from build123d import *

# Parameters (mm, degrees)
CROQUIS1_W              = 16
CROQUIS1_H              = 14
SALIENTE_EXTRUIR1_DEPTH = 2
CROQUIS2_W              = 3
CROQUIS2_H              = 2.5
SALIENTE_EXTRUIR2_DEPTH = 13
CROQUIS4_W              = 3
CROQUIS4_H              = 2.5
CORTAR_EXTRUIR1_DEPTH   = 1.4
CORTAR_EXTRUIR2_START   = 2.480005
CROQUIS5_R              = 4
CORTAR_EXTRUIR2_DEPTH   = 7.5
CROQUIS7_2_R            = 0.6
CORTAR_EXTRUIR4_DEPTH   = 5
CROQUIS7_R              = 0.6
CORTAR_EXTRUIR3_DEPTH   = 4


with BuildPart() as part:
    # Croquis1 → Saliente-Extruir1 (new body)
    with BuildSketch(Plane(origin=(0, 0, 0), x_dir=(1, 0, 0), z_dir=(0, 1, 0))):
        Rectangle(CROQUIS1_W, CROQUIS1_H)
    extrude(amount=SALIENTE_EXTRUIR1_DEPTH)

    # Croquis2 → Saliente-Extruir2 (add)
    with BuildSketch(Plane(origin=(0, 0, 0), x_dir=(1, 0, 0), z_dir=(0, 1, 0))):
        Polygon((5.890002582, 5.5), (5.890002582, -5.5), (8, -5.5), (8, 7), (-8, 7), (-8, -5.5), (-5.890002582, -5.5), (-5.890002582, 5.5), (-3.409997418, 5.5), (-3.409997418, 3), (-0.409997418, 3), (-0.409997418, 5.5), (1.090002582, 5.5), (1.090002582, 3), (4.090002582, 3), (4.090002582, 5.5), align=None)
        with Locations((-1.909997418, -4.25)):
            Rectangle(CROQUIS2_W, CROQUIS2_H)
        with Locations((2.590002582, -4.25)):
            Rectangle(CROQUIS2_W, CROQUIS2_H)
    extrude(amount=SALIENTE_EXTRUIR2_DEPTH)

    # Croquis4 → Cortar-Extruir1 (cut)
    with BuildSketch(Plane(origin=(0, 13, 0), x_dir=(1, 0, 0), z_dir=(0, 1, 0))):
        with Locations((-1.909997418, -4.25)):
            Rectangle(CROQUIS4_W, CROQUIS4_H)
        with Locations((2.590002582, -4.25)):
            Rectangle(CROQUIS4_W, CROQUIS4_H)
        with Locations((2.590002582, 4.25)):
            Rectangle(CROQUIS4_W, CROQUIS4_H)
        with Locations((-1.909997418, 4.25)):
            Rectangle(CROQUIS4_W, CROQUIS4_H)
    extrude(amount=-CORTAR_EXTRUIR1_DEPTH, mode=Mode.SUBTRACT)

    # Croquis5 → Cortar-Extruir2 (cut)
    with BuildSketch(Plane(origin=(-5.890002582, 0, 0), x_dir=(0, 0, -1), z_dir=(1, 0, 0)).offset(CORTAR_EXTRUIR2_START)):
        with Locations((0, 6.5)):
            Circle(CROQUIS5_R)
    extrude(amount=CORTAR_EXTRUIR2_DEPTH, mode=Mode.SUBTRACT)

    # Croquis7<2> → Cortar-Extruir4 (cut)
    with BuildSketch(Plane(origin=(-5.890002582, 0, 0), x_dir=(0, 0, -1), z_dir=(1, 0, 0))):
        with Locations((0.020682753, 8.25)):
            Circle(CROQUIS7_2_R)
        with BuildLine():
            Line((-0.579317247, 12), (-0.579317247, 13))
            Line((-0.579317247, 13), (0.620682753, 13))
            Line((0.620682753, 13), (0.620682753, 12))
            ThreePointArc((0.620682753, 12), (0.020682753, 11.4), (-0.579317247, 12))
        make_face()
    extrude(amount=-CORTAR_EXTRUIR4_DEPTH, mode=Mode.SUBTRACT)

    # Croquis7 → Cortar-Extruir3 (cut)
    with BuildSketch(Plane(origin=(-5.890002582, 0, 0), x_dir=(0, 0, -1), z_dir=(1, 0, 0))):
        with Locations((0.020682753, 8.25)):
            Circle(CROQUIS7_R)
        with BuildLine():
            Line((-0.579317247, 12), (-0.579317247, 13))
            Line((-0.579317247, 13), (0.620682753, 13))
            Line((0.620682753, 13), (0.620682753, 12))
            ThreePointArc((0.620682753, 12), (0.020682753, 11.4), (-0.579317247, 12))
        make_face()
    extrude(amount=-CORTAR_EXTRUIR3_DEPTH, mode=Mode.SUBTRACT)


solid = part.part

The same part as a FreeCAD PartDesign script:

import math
import FreeCAD as App
import Part
import Sketcher
Q = App.Units.Quantity

doc = App.newDocument("Part")
body = doc.addObject("PartDesign::Body", "Body")

# Sketch on XZ plane
sketch1 = doc.addObject("Sketcher::SketchObject", "Sketch")
body.addObject(sketch1)
sketch1.AttachmentSupport = (doc.XZ_Plane, [""])
sketch1.MapMode = "FlatFace"
sketch1.addGeometry([
    Part.LineSegment(App.Vector(-8, -7, 0), App.Vector(-8, 7, 0)),
    Part.LineSegment(App.Vector(-8, 7, 0), App.Vector(8, 7, 0)),
    Part.LineSegment(App.Vector(8, 7, 0), App.Vector(8, -7, 0)),
    Part.LineSegment(App.Vector(8, -7, 0), App.Vector(-8, -7, 0)),
], False)
sketch1.addConstraint([
    Sketcher.Constraint("Coincident", 0, 2, 1, 1),
    Sketcher.Constraint("Coincident", 1, 2, 2, 1),
    Sketcher.Constraint("Coincident", 2, 2, 3, 1),
    Sketcher.Constraint("Coincident", 3, 2, 0, 1),
    Sketcher.Constraint("Vertical", 0),
    Sketcher.Constraint("Horizontal", 1),
    Sketcher.Constraint("Vertical", 2),
    Sketcher.Constraint("Horizontal", 3),
    Sketcher.Constraint("Symmetric", 0, 2, 2, 2, -1, 1),
    Sketcher.Constraint("DistanceX", 1, 1, 1, 2, Q("16 mm")),
    Sketcher.Constraint("DistanceY", 0, 1, 0, 2, Q("14 mm")),
])
pad1 = doc.addObject("PartDesign::Pad", "Pad")
body.addObject(pad1)
pad1.Profile = sketch1
pad1.Length = 2
pad1.Reversed = True

# Sketch on XZ plane
sketch2 = doc.addObject("Sketcher::SketchObject", "Sketch001")
body.addObject(sketch2)
sketch2.AttachmentSupport = (doc.XZ_Plane, [""])
sketch2.MapMode = "FlatFace"
sketch2.addGeometry([
    Part.LineSegment(App.Vector(5.9, -5.5, 0), App.Vector(5.9, 5.5, 0)),  # 0
    Part.LineSegment(App.Vector(5.9, 5.5, 0), App.Vector(8, 5.5, 0)),  # 1
    Part.LineSegment(App.Vector(8, 5.5, 0), App.Vector(8, -7, 0)),  # 2
    Part.LineSegment(App.Vector(8, -7, 0), App.Vector(-8, -7, 0)),  # 3
    Part.LineSegment(App.Vector(-8, -7, 0), App.Vector(-8, 5.5, 0)),  # 4
    Part.LineSegment(App.Vector(-8, 5.5, 0), App.Vector(-5.9, 5.5, 0)),  # 5
    Part.LineSegment(App.Vector(-5.9, 5.5, 0), App.Vector(-5.9, -5.5, 0)),  # 6
    Part.LineSegment(App.Vector(-5.9, -5.5, 0), App.Vector(-3.4, -5.5, 0)),  # 7
    Part.LineSegment(App.Vector(-3.4, -5.5, 0), App.Vector(-3.4, -3, 0)),  # 8
    Part.LineSegment(App.Vector(-3.4, -3, 0), App.Vector(-0.4, -3, 0)),  # 9
    Part.LineSegment(App.Vector(-0.4, -3, 0), App.Vector(-0.4, -5.5, 0)),  # 10
    Part.LineSegment(App.Vector(-0.4, -5.5, 0), App.Vector(1.1, -5.5, 0)),  # 11
    Part.LineSegment(App.Vector(1.1, -5.5, 0), App.Vector(1.1, -3, 0)),  # 12
    Part.LineSegment(App.Vector(1.1, -3, 0), App.Vector(4.1, -3, 0)),  # 13
    Part.LineSegment(App.Vector(4.1, -3, 0), App.Vector(4.1, -5.5, 0)),  # 14
    Part.LineSegment(App.Vector(4.1, -5.5, 0), App.Vector(5.9, -5.5, 0)),  # 15
    Part.LineSegment(App.Vector(-3.4, 3, 0), App.Vector(-3.4, 5.5, 0)),  # 16
    Part.LineSegment(App.Vector(-3.4, 5.5, 0), App.Vector(-0.4, 5.5, 0)),  # 17
    Part.LineSegment(App.Vector(-0.4, 5.5, 0), App.Vector(-0.4, 3, 0)),  # 18
    Part.LineSegment(App.Vector(-0.4, 3, 0), App.Vector(-3.4, 3, 0)),  # 19
    Part.LineSegment(App.Vector(1.1, 3, 0), App.Vector(1.1, 5.5, 0)),  # 20
    Part.LineSegment(App.Vector(1.1, 5.5, 0), App.Vector(4.1, 5.5, 0)),  # 21
    Part.LineSegment(App.Vector(4.1, 5.5, 0), App.Vector(4.1, 3, 0)),  # 22
    Part.LineSegment(App.Vector(4.1, 3, 0), App.Vector(1.1, 3, 0)),  # 23
], False)
sketch2.addConstraint([
    Sketcher.Constraint("Coincident", 0, 2, 1, 1),
    Sketcher.Constraint("Coincident", 1, 2, 2, 1),
    Sketcher.Constraint("Coincident", 2, 2, 3, 1),
    Sketcher.Constraint("Coincident", 3, 2, 4, 1),
    Sketcher.Constraint("Coincident", 4, 2, 5, 1),
    Sketcher.Constraint("Coincident", 5, 2, 6, 1),
    Sketcher.Constraint("Coincident", 6, 2, 7, 1),
    Sketcher.Constraint("Coincident", 7, 2, 8, 1),
    Sketcher.Constraint("Coincident", 8, 2, 9, 1),
    Sketcher.Constraint("Coincident", 9, 2, 10, 1),
    Sketcher.Constraint("Coincident", 10, 2, 11, 1),
    Sketcher.Constraint("Coincident", 11, 2, 12, 1),
    Sketcher.Constraint("Coincident", 12, 2, 13, 1),
    Sketcher.Constraint("Coincident", 13, 2, 14, 1),
    Sketcher.Constraint("Coincident", 14, 2, 15, 1),
    Sketcher.Constraint("Coincident", 15, 2, 0, 1),
    Sketcher.Constraint("Coincident", 16, 2, 17, 1),
    Sketcher.Constraint("Coincident", 17, 2, 18, 1),
    Sketcher.Constraint("Coincident", 18, 2, 19, 1),
    Sketcher.Constraint("Coincident", 19, 2, 16, 1),
    Sketcher.Constraint("Coincident", 20, 2, 21, 1),
    Sketcher.Constraint("Coincident", 21, 2, 22, 1),
    Sketcher.Constraint("Coincident", 22, 2, 23, 1),
    Sketcher.Constraint("Coincident", 23, 2, 20, 1),
    Sketcher.Constraint("Vertical", 0),
    Sketcher.Constraint("Horizontal", 1),
    Sketcher.Constraint("Vertical", 2),
    Sketcher.Constraint("Horizontal", 3),
    Sketcher.Constraint("Vertical", 4),
    Sketcher.Constraint("Horizontal", 5),
    Sketcher.Constraint("Vertical", 6),
    Sketcher.Constraint("Horizontal", 7),
    Sketcher.Constraint("Vertical", 8),
    Sketcher.Constraint("Horizontal", 9),
    Sketcher.Constraint("Vertical", 10),
    Sketcher.Constraint("Horizontal", 11),
    Sketcher.Constraint("Vertical", 12),
    Sketcher.Constraint("Horizontal", 13),
    Sketcher.Constraint("Vertical", 14),
    Sketcher.Constraint("Horizontal", 15),
    Sketcher.Constraint("Vertical", 16),
    Sketcher.Constraint("Horizontal", 17),
    Sketcher.Constraint("Vertical", 18),
    Sketcher.Constraint("Horizontal", 19),
    Sketcher.Constraint("Vertical", 20),
    Sketcher.Constraint("Horizontal", 21),
    Sketcher.Constraint("Vertical", 22),
    Sketcher.Constraint("Horizontal", 23),
    Sketcher.Constraint("Symmetric", 0, 2, 6, 2, -1, 1),
    Sketcher.Constraint("Symmetric", 1, 2, 4, 2, -2),
    Sketcher.Constraint("Symmetric", 7, 2, 16, 2, -1),
    Sketcher.Constraint("Symmetric", 10, 2, 17, 2, -1),
    Sketcher.Constraint("Symmetric", 11, 2, 20, 2, -1),
    Sketcher.Constraint("Symmetric", 14, 2, 21, 2, -1),
    Sketcher.Constraint("Horizontal", 9, 2, 12, 2),
    Sketcher.Constraint("Horizontal", 19, 2, 22, 2),
    Sketcher.Constraint("Equal", 9, 13),
    Sketcher.Constraint("Equal", 14, 16),
    Sketcher.Constraint("DistanceX", 3, 2, 3, 1, Q("16 mm")),
    Sketcher.Constraint("DistanceX", 9, 1, 9, 2, Q("3 mm")),
    Sketcher.Constraint("DistanceY", 0, 1, 0, 2, Q("11 mm")),
    Sketcher.Constraint("DistanceX", 11, 1, 11, 2, Q("1.5 mm")),
    Sketcher.Constraint("DistanceX", 15, 1, 15, 2, Q("1.8 mm")),
    Sketcher.Constraint("DistanceY", 2, 2, 2, 1, Q("12.5 mm")),
    Sketcher.Constraint("DistanceY", 8, 1, 8, 2, Q("2.5 mm")),
    Sketcher.Constraint("DistanceX", 1, 1, 1, 2, Q("2.109997 mm")),
])
pad2 = doc.addObject("PartDesign::Pad", "Pad001")
body.addObject(pad2)
pad2.Profile = sketch2
pad2.Length = 13
pad2.Reversed = True

# Sketch on XZ plane
sketch3 = doc.addObject("Sketcher::SketchObject", "Sketch002")
body.addObject(sketch3)
sketch3.AttachmentSupport = (doc.XZ_Plane, [""])
sketch3.MapMode = "FlatFace"
sketch3.AttachmentOffset = App.Placement(App.Vector(0, 0, -13), App.Rotation())
sketch3.addGeometry([
    Part.LineSegment(App.Vector(-3.4, 3, 0), App.Vector(-3.4, 5.5, 0)),  # 0
    Part.LineSegment(App.Vector(-3.4, 5.5, 0), App.Vector(-0.4, 5.5, 0)),  # 1
    Part.LineSegment(App.Vector(-0.4, 5.5, 0), App.Vector(-0.4, 3, 0)),  # 2
    Part.LineSegment(App.Vector(-0.4, 3, 0), App.Vector(-3.4, 3, 0)),  # 3
    Part.LineSegment(App.Vector(1.1, 3, 0), App.Vector(1.1, 5.5, 0)),  # 4
    Part.LineSegment(App.Vector(1.1, 5.5, 0), App.Vector(4.1, 5.5, 0)),  # 5
    Part.LineSegment(App.Vector(4.1, 5.5, 0), App.Vector(4.1, 3, 0)),  # 6
    Part.LineSegment(App.Vector(4.1, 3, 0), App.Vector(1.1, 3, 0)),  # 7
    Part.LineSegment(App.Vector(1.1, -5.5, 0), App.Vector(1.1, -3, 0)),  # 8
    Part.LineSegment(App.Vector(1.1, -3, 0), App.Vector(4.1, -3, 0)),  # 9
    Part.LineSegment(App.Vector(4.1, -3, 0), App.Vector(4.1, -5.5, 0)),  # 10
    Part.LineSegment(App.Vector(4.1, -5.5, 0), App.Vector(1.1, -5.5, 0)),  # 11
    Part.LineSegment(App.Vector(-3.4, -5.5, 0), App.Vector(-3.4, -3, 0)),  # 12
    Part.LineSegment(App.Vector(-3.4, -3, 0), App.Vector(-0.4, -3, 0)),  # 13
    Part.LineSegment(App.Vector(-0.4, -3, 0), App.Vector(-0.4, -5.5, 0)),  # 14
    Part.LineSegment(App.Vector(-0.4, -5.5, 0), App.Vector(-3.4, -5.5, 0)),  # 15
], False)
sketch3.addConstraint([
    Sketcher.Constraint("Coincident", 0, 2, 1, 1),
    Sketcher.Constraint("Coincident", 1, 2, 2, 1),
    Sketcher.Constraint("Coincident", 2, 2, 3, 1),
    Sketcher.Constraint("Coincident", 3, 2, 0, 1),
    Sketcher.Constraint("Coincident", 4, 2, 5, 1),
    Sketcher.Constraint("Coincident", 5, 2, 6, 1),
    Sketcher.Constraint("Coincident", 6, 2, 7, 1),
    Sketcher.Constraint("Coincident", 7, 2, 4, 1),
    Sketcher.Constraint("Coincident", 8, 2, 9, 1),
    Sketcher.Constraint("Coincident", 9, 2, 10, 1),
    Sketcher.Constraint("Coincident", 10, 2, 11, 1),
    Sketcher.Constraint("Coincident", 11, 2, 8, 1),
    Sketcher.Constraint("Coincident", 12, 2, 13, 1),
    Sketcher.Constraint("Coincident", 13, 2, 14, 1),
    Sketcher.Constraint("Coincident", 14, 2, 15, 1),
    Sketcher.Constraint("Coincident", 15, 2, 12, 1),
    Sketcher.Constraint("Vertical", 0),
    Sketcher.Constraint("Horizontal", 1),
    Sketcher.Constraint("Vertical", 2),
    Sketcher.Constraint("Horizontal", 3),
    Sketcher.Constraint("Vertical", 4),
    Sketcher.Constraint("Horizontal", 5),
    Sketcher.Constraint("Vertical", 6),
    Sketcher.Constraint("Horizontal", 7),
    Sketcher.Constraint("Vertical", 8),
    Sketcher.Constraint("Horizontal", 9),
    Sketcher.Constraint("Vertical", 10),
    Sketcher.Constraint("Horizontal", 11),
    Sketcher.Constraint("Vertical", 12),
    Sketcher.Constraint("Horizontal", 13),
    Sketcher.Constraint("Vertical", 14),
    Sketcher.Constraint("Horizontal", 15),
    Sketcher.Constraint("Symmetric", 7, 2, 8, 2, -1),
    Sketcher.Constraint("Symmetric", 5, 2, 10, 2, -1),
    Sketcher.Constraint("Symmetric", 3, 2, 12, 2, -1),
    Sketcher.Constraint("Symmetric", 1, 2, 14, 2, -1),
    Sketcher.Constraint("Horizontal", 1, 2, 4, 2),
    Sketcher.Constraint("Horizontal", 3, 2, 6, 2),
    Sketcher.Constraint("Equal", 3, 5),
    Sketcher.Constraint("DistanceX", 1, 1, 1, 2, Q("3 mm")),
    Sketcher.Constraint("DistanceY", 0, 1, 0, 2, Q("2.5 mm")),
    Sketcher.Constraint("DistanceY", -1, 1, 2, 2, Q("3 mm")),
    Sketcher.Constraint("DistanceX", 1, 2, 4, 2, Q("1.5 mm")),
    Sketcher.Constraint("DistanceX", 0, 2, -1, 1, Q("3.409997 mm")),
])
pocket1 = doc.addObject("PartDesign::Pocket", "Pocket")
body.addObject(pocket1)
pocket1.Profile = sketch3
pocket1.Length = 1.4
pocket1.Reversed = True

# Sketch on YZ plane
sketch4 = doc.addObject("Sketcher::SketchObject", "Sketch003")
body.addObject(sketch4)
sketch4.AttachmentSupport = (doc.YZ_Plane, [""])
sketch4.MapMode = "FlatFace"
sketch4.AttachmentOffset = App.Placement(App.Vector(0, 0, -3.409998), App.Rotation())
sketch4.addGeometry(Part.Circle(App.Vector(6.5, 0, 0), App.Vector(0, 0, 1), 4), False)
sketch4.addConstraint([
    Sketcher.Constraint("PointOnObject", 0, 3, -1),
    Sketcher.Constraint("Diameter", 0, Q("8 mm")),
    Sketcher.Constraint("DistanceX", -1, 1, 0, 3, Q("6.5 mm")),
])
pocket2 = doc.addObject("PartDesign::Pocket", "Pocket001")
body.addObject(pocket2)
pocket2.Profile = sketch4
pocket2.Length = 7.5
pocket2.Reversed = True

# Sketch on YZ plane
sketch5 = doc.addObject("Sketcher::SketchObject", "Sketch004")
body.addObject(sketch5)
sketch5.AttachmentSupport = (doc.YZ_Plane, [""])
sketch5.MapMode = "FlatFace"
sketch5.AttachmentOffset = App.Placement(App.Vector(0, 0, -5.890003), App.Rotation())
sketch5.addGeometry([
    Part.Circle(App.Vector(8.2, 0, 0), App.Vector(0, 0, 1), 0.6),  # 0
    Part.LineSegment(App.Vector(13, 0.6, 0), App.Vector(12, 0.6, 0)),  # 1
    Part.ArcOfCircle(Part.Circle(App.Vector(12, 0, 0), App.Vector(0, 0, 1), 0.6), math.radians(90), math.radians(270)),  # 2
    Part.LineSegment(App.Vector(12, -0.6, 0), App.Vector(13, -0.6, 0)),  # 3
    Part.LineSegment(App.Vector(13, -0.6, 0), App.Vector(13, 0.6, 0)),  # 4
], False)
sketch5.addConstraint([
    Sketcher.Constraint("Tangent", 1, 2, 2, 1),
    Sketcher.Constraint("Tangent", 2, 2, 3, 1),
    Sketcher.Constraint("Coincident", 3, 2, 4, 1),
    Sketcher.Constraint("Coincident", 4, 2, 1, 1),
    Sketcher.Constraint("Horizontal", 1),
    Sketcher.Constraint("Horizontal", 3),
    Sketcher.Constraint("Vertical", 4),
    Sketcher.Constraint("Equal", 0, 2),
    Sketcher.Constraint("Horizontal", 0, 3, 2, 3),
    Sketcher.Constraint("Diameter", 0, Q("1.2 mm")),
    Sketcher.Constraint("DistanceX", 1, 2, 1, 1, Q("1 mm")),
    Sketcher.Constraint("DistanceX", -1, 1, 2, 3, Q("12 mm")),
    Sketcher.Constraint("DistanceX", -1, 1, 0, 3, Q("8.25 mm")),
    Sketcher.Constraint("DistanceY", 0, 3, -1, 1, Q("0.020683 mm")),
])
pocket3 = doc.addObject("PartDesign::Pocket", "Pocket002")
body.addObject(pocket3)
pocket3.Profile = sketch5
pocket3.Length = 5

# Sketch on YZ plane
sketch6 = doc.addObject("Sketcher::SketchObject", "Sketch005")
body.addObject(sketch6)
sketch6.AttachmentSupport = (doc.YZ_Plane, [""])
sketch6.MapMode = "FlatFace"
sketch6.AttachmentOffset = App.Placement(App.Vector(0, 0, -5.890003), App.Rotation())
sketch6.addGeometry([
    Part.Circle(App.Vector(8.2, 0, 0), App.Vector(0, 0, 1), 0.6),  # 0
    Part.LineSegment(App.Vector(13, 0.6, 0), App.Vector(12, 0.6, 0)),  # 1
    Part.ArcOfCircle(Part.Circle(App.Vector(12, 0, 0), App.Vector(0, 0, 1), 0.6), math.radians(90), math.radians(270)),  # 2
    Part.LineSegment(App.Vector(12, -0.6, 0), App.Vector(13, -0.6, 0)),  # 3
    Part.LineSegment(App.Vector(13, -0.6, 0), App.Vector(13, 0.6, 0)),  # 4
], False)
sketch6.addConstraint([
    Sketcher.Constraint("Tangent", 1, 2, 2, 1),
    Sketcher.Constraint("Tangent", 2, 2, 3, 1),
    Sketcher.Constraint("Coincident", 3, 2, 4, 1),
    Sketcher.Constraint("Coincident", 4, 2, 1, 1),
    Sketcher.Constraint("Horizontal", 1),
    Sketcher.Constraint("Horizontal", 3),
    Sketcher.Constraint("Vertical", 4),
    Sketcher.Constraint("Equal", 0, 2),
    Sketcher.Constraint("Horizontal", 0, 3, 2, 3),
    Sketcher.Constraint("Diameter", 0, Q("1.2 mm")),
    Sketcher.Constraint("DistanceX", 1, 2, 1, 1, Q("1 mm")),
    Sketcher.Constraint("DistanceX", -1, 1, 2, 3, Q("12 mm")),
    Sketcher.Constraint("DistanceX", -1, 1, 0, 3, Q("8.25 mm")),
    Sketcher.Constraint("DistanceY", 0, 3, -1, 1, Q("0.020683 mm")),
])
pocket4 = doc.addObject("PartDesign::Pocket", "Pocket003")
body.addObject(pocket4)
pocket4.Profile = sketch6
pocket4.Length = 4

doc.recompute()
